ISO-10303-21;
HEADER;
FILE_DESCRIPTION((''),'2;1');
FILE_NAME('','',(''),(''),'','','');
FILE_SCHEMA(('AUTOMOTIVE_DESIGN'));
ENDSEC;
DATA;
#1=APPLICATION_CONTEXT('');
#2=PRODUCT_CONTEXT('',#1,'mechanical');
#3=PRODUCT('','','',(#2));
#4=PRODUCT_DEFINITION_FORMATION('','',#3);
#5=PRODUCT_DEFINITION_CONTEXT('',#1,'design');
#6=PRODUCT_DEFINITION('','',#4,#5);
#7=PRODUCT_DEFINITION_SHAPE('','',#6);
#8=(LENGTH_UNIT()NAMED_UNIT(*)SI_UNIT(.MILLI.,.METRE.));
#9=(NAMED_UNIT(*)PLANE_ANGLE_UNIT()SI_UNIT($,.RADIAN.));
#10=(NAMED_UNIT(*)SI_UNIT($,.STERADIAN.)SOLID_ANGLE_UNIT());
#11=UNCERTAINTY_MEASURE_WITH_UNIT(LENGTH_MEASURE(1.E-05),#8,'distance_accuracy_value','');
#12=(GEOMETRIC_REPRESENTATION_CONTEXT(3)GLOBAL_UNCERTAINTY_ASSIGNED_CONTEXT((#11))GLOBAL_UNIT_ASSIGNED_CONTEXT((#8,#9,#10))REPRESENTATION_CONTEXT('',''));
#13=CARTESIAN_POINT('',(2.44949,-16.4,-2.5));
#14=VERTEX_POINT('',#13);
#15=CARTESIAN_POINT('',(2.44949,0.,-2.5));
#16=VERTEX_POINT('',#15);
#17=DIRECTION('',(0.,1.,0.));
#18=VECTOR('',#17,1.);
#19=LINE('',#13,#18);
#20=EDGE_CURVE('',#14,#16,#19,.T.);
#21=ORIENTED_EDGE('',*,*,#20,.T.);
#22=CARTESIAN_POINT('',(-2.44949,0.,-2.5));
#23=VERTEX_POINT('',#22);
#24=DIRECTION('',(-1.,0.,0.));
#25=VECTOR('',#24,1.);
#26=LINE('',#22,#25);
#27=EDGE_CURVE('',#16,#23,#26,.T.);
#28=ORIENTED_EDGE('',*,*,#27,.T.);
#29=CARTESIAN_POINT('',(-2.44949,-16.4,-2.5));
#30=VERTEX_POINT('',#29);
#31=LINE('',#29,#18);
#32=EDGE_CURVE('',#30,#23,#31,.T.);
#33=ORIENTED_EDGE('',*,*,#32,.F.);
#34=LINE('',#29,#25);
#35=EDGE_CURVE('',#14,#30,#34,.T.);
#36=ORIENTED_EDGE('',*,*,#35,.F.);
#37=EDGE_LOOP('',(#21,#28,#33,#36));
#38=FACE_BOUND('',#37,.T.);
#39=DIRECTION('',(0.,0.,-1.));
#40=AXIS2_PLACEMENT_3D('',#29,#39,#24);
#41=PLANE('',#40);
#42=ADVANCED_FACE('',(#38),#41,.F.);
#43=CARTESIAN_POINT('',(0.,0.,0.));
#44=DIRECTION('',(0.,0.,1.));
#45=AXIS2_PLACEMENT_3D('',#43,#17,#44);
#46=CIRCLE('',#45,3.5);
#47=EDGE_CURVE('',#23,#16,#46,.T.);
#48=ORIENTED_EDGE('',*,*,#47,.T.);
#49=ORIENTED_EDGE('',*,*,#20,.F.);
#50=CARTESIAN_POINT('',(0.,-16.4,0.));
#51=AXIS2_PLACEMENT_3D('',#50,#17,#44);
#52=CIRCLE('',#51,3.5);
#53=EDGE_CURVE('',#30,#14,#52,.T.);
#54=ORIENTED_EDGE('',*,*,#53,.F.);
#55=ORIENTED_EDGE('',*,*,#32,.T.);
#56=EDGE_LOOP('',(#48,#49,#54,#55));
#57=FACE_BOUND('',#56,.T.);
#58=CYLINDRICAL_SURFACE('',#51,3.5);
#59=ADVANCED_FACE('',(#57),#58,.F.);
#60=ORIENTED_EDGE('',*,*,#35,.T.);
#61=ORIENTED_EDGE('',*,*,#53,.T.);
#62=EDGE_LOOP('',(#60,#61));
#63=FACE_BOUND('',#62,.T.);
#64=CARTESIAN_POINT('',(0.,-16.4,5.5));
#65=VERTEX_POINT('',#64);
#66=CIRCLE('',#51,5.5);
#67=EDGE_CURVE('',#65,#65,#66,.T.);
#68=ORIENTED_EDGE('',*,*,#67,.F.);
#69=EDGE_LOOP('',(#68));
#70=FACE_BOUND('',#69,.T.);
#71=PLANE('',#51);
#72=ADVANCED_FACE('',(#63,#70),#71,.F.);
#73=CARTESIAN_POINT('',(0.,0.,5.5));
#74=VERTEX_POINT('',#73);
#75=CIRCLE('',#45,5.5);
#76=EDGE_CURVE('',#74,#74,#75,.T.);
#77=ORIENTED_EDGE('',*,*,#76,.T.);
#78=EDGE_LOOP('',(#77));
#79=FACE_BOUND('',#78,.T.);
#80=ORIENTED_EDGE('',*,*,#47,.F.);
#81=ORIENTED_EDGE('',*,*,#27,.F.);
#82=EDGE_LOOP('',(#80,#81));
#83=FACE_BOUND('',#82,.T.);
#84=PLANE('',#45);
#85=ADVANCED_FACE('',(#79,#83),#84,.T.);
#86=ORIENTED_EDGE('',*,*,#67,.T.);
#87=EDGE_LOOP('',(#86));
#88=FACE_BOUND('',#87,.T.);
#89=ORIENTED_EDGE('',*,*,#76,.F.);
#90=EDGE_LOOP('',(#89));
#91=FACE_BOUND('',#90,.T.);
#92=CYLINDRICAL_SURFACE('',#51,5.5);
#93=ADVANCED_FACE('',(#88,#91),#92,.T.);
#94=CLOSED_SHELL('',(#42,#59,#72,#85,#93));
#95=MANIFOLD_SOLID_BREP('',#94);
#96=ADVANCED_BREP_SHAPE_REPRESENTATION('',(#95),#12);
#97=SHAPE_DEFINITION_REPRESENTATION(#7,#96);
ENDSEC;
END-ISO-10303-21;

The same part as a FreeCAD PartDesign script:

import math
import FreeCAD as App
import Part
import Sketcher

V = App.Vector

doc = App.newDocument("Part")
body = doc.addObject("PartDesign::Body", "Body")

# Sketch on XZ plane
sketch1 = doc.addObject("Sketcher::SketchObject", "Sketch")
body.addObject(sketch1)
sketch1.AttachmentSupport = (doc.XZ_Plane, [""])
sketch1.MapMode = "FlatFace"
sketch1.addGeometry(Part.Circle(V(0, 0, 0), V(0, 0, 1), 6), False)
sketch1.addConstraint([
    Sketcher.Constraint("Coincident", 0, 3, -1, 1),
    Sketcher.Constraint("Diameter", 0, 11.0),
])
pad1 = doc.addObject("PartDesign::Pad", "Pad")
body.addObject(pad1)
pad1.Profile = sketch1
pad1.Length = 16.4

# Sketch on XZ plane
sketch2 = doc.addObject("Sketcher::SketchObject", "Sketch001")
body.addObject(sketch2)
sketch2.AttachmentSupport = (doc.XZ_Plane, [""])
sketch2.MapMode = "FlatFace"
sketch2.addGeometry([
    Part.LineSegment(V(2.4, -2.5, 0), V(-2.4, -2.5, 0)),
    Part.ArcOfCircle(Part.Circle(V(0, 0, 0), V(0, 0, 1), 3.5), math.radians(-46), math.radians(226)),
], False)
sketch2.addConstraint([
    Sketcher.Constraint("Coincident", 0, 1, 1, 1),
    Sketcher.Constraint("Coincident", 1, 2, 0, 2),
    Sketcher.Constraint("Horizontal", 0),
    Sketcher.Constraint("Coincident", 1, 3, -1, 1),
    Sketcher.Constraint("Radius", 1, 3.5),
    Sketcher.Constraint("DistanceY", 0, 1, -1, 1, 2.5),
])
pocket1 = doc.addObject("PartDesign::Pocket", "Pocket")
body.addObject(pocket1)
pocket1.Profile = sketch2
pocket1.Type = "ThroughAll"
pocket1.Reversed = True

doc.recompute()
